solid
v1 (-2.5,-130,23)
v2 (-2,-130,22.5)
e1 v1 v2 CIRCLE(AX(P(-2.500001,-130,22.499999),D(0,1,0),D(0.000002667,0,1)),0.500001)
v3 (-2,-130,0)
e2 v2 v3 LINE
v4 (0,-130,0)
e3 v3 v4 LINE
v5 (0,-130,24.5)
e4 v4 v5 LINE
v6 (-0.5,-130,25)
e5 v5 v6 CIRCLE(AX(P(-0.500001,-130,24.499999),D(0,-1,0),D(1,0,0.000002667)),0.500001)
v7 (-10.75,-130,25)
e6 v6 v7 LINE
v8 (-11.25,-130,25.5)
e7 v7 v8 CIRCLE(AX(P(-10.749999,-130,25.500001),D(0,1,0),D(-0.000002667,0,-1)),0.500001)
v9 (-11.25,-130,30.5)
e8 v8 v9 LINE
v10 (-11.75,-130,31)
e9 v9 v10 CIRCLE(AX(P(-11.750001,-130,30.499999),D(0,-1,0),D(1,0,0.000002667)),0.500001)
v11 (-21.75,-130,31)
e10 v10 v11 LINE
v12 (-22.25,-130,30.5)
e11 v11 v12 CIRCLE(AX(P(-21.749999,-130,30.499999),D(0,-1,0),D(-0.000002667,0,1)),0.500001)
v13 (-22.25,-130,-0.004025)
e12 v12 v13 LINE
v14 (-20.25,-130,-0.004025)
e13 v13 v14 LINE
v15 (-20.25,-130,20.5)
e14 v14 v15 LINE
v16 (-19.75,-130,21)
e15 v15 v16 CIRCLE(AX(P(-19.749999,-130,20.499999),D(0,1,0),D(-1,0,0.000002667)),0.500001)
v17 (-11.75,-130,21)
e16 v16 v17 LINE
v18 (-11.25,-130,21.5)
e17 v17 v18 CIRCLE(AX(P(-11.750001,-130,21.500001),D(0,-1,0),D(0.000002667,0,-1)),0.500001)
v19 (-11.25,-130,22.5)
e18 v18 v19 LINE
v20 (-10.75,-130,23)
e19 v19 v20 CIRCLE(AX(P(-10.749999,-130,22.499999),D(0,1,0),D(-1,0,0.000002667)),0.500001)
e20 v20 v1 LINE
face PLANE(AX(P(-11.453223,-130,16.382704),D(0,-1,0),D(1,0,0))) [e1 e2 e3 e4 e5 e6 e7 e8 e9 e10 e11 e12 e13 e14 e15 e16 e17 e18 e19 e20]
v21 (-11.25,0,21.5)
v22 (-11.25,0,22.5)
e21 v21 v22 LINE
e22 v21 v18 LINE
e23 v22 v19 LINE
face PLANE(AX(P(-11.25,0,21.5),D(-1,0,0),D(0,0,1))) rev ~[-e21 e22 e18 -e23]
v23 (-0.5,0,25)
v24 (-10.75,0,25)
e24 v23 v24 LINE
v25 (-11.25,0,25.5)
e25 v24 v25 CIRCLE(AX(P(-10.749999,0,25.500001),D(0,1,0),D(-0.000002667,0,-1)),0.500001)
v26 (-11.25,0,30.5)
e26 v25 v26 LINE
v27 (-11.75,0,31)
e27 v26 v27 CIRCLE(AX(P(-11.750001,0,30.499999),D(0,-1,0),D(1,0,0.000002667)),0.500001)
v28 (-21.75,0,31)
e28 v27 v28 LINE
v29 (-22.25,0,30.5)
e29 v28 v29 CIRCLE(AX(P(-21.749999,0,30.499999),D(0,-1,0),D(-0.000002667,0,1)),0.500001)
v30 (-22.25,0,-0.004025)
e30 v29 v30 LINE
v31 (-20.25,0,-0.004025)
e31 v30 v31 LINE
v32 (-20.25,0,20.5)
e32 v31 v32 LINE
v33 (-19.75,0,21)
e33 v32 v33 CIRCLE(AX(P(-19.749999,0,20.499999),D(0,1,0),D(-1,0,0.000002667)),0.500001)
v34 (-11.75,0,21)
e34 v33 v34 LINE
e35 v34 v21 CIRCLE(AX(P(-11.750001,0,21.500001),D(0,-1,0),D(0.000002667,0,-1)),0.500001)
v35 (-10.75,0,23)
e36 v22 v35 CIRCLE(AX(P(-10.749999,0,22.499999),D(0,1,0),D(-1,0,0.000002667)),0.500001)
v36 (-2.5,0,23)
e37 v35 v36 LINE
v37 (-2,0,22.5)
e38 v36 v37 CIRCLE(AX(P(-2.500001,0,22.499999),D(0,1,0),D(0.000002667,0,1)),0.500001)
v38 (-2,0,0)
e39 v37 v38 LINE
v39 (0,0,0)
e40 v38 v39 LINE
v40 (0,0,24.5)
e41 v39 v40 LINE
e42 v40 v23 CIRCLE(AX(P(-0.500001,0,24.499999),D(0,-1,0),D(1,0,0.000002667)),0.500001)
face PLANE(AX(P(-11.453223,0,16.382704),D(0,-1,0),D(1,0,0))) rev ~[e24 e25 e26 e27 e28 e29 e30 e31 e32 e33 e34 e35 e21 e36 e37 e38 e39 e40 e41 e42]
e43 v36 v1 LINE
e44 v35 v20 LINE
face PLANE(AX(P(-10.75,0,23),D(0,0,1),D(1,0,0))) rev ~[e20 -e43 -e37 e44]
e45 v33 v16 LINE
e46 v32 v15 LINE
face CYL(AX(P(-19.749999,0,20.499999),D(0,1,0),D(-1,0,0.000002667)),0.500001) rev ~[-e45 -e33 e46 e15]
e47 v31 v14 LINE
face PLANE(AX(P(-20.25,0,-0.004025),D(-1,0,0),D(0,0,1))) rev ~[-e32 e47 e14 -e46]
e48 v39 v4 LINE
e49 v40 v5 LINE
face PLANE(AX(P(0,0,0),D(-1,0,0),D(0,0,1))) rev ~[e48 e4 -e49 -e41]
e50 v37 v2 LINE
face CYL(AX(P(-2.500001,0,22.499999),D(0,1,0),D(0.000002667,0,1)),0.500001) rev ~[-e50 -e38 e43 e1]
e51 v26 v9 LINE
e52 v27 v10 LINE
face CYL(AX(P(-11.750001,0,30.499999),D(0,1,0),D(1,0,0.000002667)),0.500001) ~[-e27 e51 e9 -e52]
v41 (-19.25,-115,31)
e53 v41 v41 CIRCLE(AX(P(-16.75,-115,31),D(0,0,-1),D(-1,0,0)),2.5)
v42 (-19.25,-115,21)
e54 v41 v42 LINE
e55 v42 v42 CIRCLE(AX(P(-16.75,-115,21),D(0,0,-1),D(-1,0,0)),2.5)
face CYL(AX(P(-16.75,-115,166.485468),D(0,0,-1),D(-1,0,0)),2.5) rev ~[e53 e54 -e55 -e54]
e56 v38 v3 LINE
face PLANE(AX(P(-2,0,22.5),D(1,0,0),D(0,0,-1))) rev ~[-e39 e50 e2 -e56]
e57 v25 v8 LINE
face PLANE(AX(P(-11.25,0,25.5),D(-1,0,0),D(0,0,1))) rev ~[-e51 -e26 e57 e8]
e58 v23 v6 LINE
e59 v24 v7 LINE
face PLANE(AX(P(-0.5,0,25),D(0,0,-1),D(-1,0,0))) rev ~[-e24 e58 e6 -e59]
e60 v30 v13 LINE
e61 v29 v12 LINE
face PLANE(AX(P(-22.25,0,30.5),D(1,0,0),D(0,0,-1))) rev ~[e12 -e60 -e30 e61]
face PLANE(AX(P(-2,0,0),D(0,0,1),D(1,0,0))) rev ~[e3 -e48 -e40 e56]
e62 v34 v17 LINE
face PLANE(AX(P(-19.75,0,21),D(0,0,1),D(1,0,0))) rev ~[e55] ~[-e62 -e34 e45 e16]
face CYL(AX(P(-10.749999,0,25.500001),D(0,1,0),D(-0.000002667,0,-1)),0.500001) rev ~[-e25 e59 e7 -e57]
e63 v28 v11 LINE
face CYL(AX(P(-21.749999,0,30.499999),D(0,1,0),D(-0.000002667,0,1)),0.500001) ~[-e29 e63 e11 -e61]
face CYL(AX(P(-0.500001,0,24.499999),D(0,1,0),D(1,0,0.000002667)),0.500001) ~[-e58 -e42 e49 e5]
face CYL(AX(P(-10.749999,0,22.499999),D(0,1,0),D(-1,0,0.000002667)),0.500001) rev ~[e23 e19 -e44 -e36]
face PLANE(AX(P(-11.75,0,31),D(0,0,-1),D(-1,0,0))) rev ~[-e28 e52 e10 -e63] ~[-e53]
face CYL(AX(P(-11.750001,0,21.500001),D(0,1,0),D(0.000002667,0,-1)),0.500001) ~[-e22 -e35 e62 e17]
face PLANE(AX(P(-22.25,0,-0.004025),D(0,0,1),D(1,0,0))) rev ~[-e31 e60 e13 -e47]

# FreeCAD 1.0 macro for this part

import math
import FreeCAD as App
import Part
import Sketcher

V = App.Vector

doc = App.newDocument("Part")
body = doc.addObject("PartDesign::Body", "Body")

sketch1 = doc.addObject("Sketcher::SketchObject", "Sketch")
body.addObject(sketch1)
sketch1.AttachmentSupport = (doc.XZ_Plane, [""])
sketch1.MapMode = "FlatFace"
sketch1.addGeometry(Part.LineSegment(V(-2, 0, 0), V(0, 0, 0)), False)
sketch1.addGeometry(Part.LineSegment(V(0, 0, 0), V(0, 24.5, 0)), False)
sketch1.addGeometry(Part.ArcOfCircle(Part.Circle(V(-0.500001, 24.499999, 0), V(0, 0, 1), 0.500001), math.radians(0.000153), math.radians(89.999847)), False)
sketch1.addGeometry(Part.LineSegment(V(-0.5, 25, 0), V(-10.75, 25, 0)), False)
sketch1.addGeometry(Part.ArcOfCircle(Part.Circle(V(-10.749999, 25.500001, 0), V(0, 0, 1), 0.500001), math.radians(-179.999847), math.radians(-90.000153)), False)
sketch1.addGeometry(Part.LineSegment(V(-11.25, 25.5, 0), V(-11.25, 30.5, 0)), False)
sketch1.addGeometry(Part.ArcOfCircle(Part.Circle(V(-11.750001, 30.499999, 0), V(0, 0, 1), 0.500001), math.radians(0.000153), math.radians(89.999847)), False)
sketch1.addGeometry(Part.LineSegment(V(-11.75, 31, 0), V(-21.75, 31, 0)), False)
sketch1.addGeometry(Part.ArcOfCircle(Part.Circle(V(-21.749999, 30.499999, 0), V(0, 0, 1), 0.500001), math.radians(90.000153), math.radians(179.999847)), False)
sketch1.addGeometry(Part.LineSegment(V(-22.25, 30.5, 0), V(-22.25, -0.004025, 0)), False)
sketch1.addGeometry(Part.LineSegment(V(-22.25, -0.004025, 0), V(-20.25, -0.004025, 0)), False)
sketch1.addGeometry(Part.LineSegment(V(-20.25, -0.004025, 0), V(-20.25, 20.5, 0)), False)
sketch1.addGeometry(Part.ArcOfCircle(Part.Circle(V(-19.749999, 20.499999, 0), V(0, 0, 1), 0.500001), math.radians(90.000153), math.radians(179.999847)), False)
sketch1.addGeometry(Part.LineSegment(V(-19.75, 21, 0), V(-11.75, 21, 0)), False)
sketch1.addGeometry(Part.ArcOfCircle(Part.Circle(V(-11.750001, 21.500001, 0), V(0, 0, 1), 0.500001), math.radians(-89.999847), math.radians(-0.000153)), False)
sketch1.addGeometry(Part.LineSegment(V(-11.25, 21.5, 0), V(-11.25, 22.5, 0)), False)
sketch1.addGeometry(Part.ArcOfCircle(Part.Circle(V(-10.749999, 22.499999, 0), V(0, 0, 1), 0.500001), math.radians(90.000153), math.radians(179.999847)), False)
sketch1.addGeometry(Part.LineSegment(V(-10.75, 23, 0), V(-2.5, 23, 0)), False)
sketch1.addGeometry(Part.ArcOfCircle(Part.Circle(V(-2.500001, 22.499999, 0), V(0, 0, 1), 0.500001), math.radians(0.000153), math.radians(89.999847)), False)
sketch1.addGeometry(Part.LineSegment(V(-2, 22.5, 0), V(-2, 0, 0)), False)
sketch1.addConstraint(Sketcher.Constraint("Coincident", 0, 2, 1, 1))
sketch1.addConstraint(Sketcher.Constraint("Coincident", 1, 2, 2, 1))
sketch1.addConstraint(Sketcher.Constraint("Coincident", 2, 2, 3, 1))
sketch1.addConstraint(Sketcher.Constraint("Coincident", 3, 2, 4, 2))
sketch1.addConstraint(Sketcher.Constraint("Coincident", 4, 1, 5, 1))
sketch1.addConstraint(Sketcher.Constraint("Coincident", 5, 2, 6, 1))
sketch1.addConstraint(Sketcher.Constraint("Coincident", 6, 2, 7, 1))
sketch1.addConstraint(Sketcher.Constraint("Coincident", 7, 2, 8, 1))
sketch1.addConstraint(Sketcher.Constraint("Coincident", 8, 2, 9, 1))
sketch1.addConstraint(Sketcher.Constraint("Coincident", 9, 2, 10, 1))
sketch1.addConstraint(Sketcher.Constraint("Coincident", 10, 2, 11, 1))
sketch1.addConstraint(Sketcher.Constraint("Coincident", 11, 2, 12, 2))
sketch1.addConstraint(Sketcher.Constraint("Coincident", 12, 1, 13, 1))
sketch1.addConstraint(Sketcher.Constraint("Coincident", 13, 2, 14, 1))
sketch1.addConstraint(Sketcher.Constraint("Coincident", 14, 2, 15, 1))
sketch1.addConstraint(Sketcher.Constraint("Coincident", 15, 2, 16, 2))
sketch1.addConstraint(Sketcher.Constraint("Coincident", 16, 1, 17, 1))
sketch1.addConstraint(Sketcher.Constraint("Coincident", 17, 2, 18, 2))
sketch1.addConstraint(Sketcher.Constraint("Coincident", 18, 1, 19, 1))
sketch1.addConstraint(Sketcher.Constraint("Coincident", 19, 2, 0, 1))
sketch1.addConstraint(Sketcher.Constraint("Horizontal", 0))
sketch1.addConstraint(Sketcher.Constraint("Vertical", 1))
sketch1.addConstraint(Sketcher.Constraint("Horizontal", 3))
sketch1.addConstraint(Sketcher.Constraint("Vertical", 5))
sketch1.addConstraint(Sketcher.Constraint("Horizontal", 7))
sketch1.addConstraint(Sketcher.Constraint("Vertical", 9))
sketch1.addConstraint(Sketcher.Constraint("Horizontal", 10))
sketch1.addConstraint(Sketcher.Constraint("Vertical", 11))
sketch1.addConstraint(Sketcher.Constraint("Horizontal", 13))
sketch1.addConstraint(Sketcher.Constraint("Vertical", 15))
sketch1.addConstraint(Sketcher.Constraint("Horizontal", 17))
sketch1.addConstraint(Sketcher.Constraint("Vertical", 19))
sketch1.addConstraint(Sketcher.Constraint("Coincident", 0, 2, -1, 1))
sketch1.addConstraint(Sketcher.Constraint("Equal", 2, 4))
sketch1.addConstraint(Sketcher.Constraint("Equal", 4, 6))
sketch1.addConstraint(Sketcher.Constraint("Equal", 6, 8))
sketch1.addConstraint(Sketcher.Constraint("Equal", 8, 12))
sketch1.addConstraint(Sketcher.Constraint("Equal", 12, 14))
sketch1.addConstraint(Sketcher.Constraint("Equal", 14, 16))
sketch1.addConstraint(Sketcher.Constraint("Equal", 16, 18))
sketch1.addConstraint(Sketcher.Constraint("Horizontal", 2, 3, 1, 2))
sketch1.addConstraint(Sketcher.Constraint("Horizontal", 8, 3, 5, 2))
sketch1.addConstraint(Sketcher.Constraint("Horizontal", 5, 2, 8, 2))
sketch1.addConstraint(Sketcher.Constraint("Horizontal", 12, 3, 11, 2))
sketch1.addConstraint(Sketcher.Constraint("Horizontal", 18, 3, 15, 2))
sketch1.addConstraint(Sketcher.Constraint("Horizontal", 15, 2, 18, 1))
sketch1.addConstraint(Sketcher.Constraint("Vertical", 6, 3, 14, 3))
sketch1.addConstraint(Sketcher.Constraint("Vertical", 16, 3, 3, 2))
sketch1.addConstraint(Sketcher.Constraint("Vertical", 14, 3, 6, 2))
sketch1.addConstraint(Sketcher.Constraint("Vertical", 8, 3, 7, 2))
sketch1.addConstraint(Sketcher.Constraint("Vertical", 6, 2, 13, 2))
sketch1.addConstraint(Sketcher.Constraint("Vertical", 3, 2, 16, 1))
sketch1.addConstraint(Sketcher.Constraint("Vertical", 18, 3, 17, 2))
sketch1.addConstraint(Sketcher.Constraint("Equal", 0, 10))
sketch1.addConstraint(Sketcher.Constraint("Radius", 2, 0.500001))
sketch1.addConstraint(Sketcher.Constraint("DistanceX", 0, 1, 0, 2, 2.0))
sketch1.addConstraint(Sketcher.Constraint("DistanceX", 7, 2, 7, 1, 10.0))
sketch1.addConstraint(Sketcher.Constraint("DistanceX", 13, 1, 13, 2, 8.0))
sketch1.addConstraint(Sketcher.Constraint("DistanceY", 5, 1, 5, 2, 5.0))
sketch1.addConstraint(Sketcher.Constraint("DistanceY", 15, 1, 15, 2, 1.0))
sketch1.addConstraint(Sketcher.Constraint("DistanceY", 1, 1, 1, 2, 24.5))
sketch1.addConstraint(Sketcher.Constraint("DistanceY", 19, 2, 19, 1, 22.5))
sketch1.addConstraint(Sketcher.Constraint("DistanceY", -1, 1, 6, 2, 31.0))
sketch1.addConstraint(Sketcher.Constraint("DistanceY", -1, 1, 12, 1, 21.0))
sketch1.addConstraint(Sketcher.Constraint("DistanceX", 18, 3, 2, 2, 2.000001))
sketch1.addConstraint(Sketcher.Constraint("DistanceX", 3, 2, 3, 1, 10.25))
sketch1.addConstraint(Sketcher.Constraint("DistanceY", 9, 2, 9, 1, 30.504025))
pad1 = doc.addObject("PartDesign::Pad", "Pad")
body.addObject(pad1)
pad1.Profile = sketch1
pad1.Length = 130

sketch2 = doc.addObject("Sketcher::SketchObject", "Sketch001")
body.addObject(sketch2)
sketch2.AttachmentSupport = (doc.XY_Plane, [""])
sketch2.MapMode = "FlatFace"
sketch2.AttachmentOffset = App.Placement(V(0, 0, 31), App.Rotation())
sketch2.addGeometry(Part.Circle(V(-16.75, -115, 0), V(0, 0, 1), 2.5), False)
sketch2.addConstraint(Sketcher.Constraint("Diameter", 0, 5.0))
sketch2.addConstraint(Sketcher.Constraint("DistanceY", 0, 3, -1, 1, 115.0))
sketch2.addConstraint(Sketcher.Constraint("DistanceX", 0, 3, -1, 1, 16.75))
doc.recompute()
hole = doc.addObject("PartDesign::Hole", "Hole")
body.addObject(hole)
hole.Profile = sketch2
hole.ThreadType = "None"
hole.Diameter = 5
hole.DepthType = "ThroughAll"

doc.recompute()
